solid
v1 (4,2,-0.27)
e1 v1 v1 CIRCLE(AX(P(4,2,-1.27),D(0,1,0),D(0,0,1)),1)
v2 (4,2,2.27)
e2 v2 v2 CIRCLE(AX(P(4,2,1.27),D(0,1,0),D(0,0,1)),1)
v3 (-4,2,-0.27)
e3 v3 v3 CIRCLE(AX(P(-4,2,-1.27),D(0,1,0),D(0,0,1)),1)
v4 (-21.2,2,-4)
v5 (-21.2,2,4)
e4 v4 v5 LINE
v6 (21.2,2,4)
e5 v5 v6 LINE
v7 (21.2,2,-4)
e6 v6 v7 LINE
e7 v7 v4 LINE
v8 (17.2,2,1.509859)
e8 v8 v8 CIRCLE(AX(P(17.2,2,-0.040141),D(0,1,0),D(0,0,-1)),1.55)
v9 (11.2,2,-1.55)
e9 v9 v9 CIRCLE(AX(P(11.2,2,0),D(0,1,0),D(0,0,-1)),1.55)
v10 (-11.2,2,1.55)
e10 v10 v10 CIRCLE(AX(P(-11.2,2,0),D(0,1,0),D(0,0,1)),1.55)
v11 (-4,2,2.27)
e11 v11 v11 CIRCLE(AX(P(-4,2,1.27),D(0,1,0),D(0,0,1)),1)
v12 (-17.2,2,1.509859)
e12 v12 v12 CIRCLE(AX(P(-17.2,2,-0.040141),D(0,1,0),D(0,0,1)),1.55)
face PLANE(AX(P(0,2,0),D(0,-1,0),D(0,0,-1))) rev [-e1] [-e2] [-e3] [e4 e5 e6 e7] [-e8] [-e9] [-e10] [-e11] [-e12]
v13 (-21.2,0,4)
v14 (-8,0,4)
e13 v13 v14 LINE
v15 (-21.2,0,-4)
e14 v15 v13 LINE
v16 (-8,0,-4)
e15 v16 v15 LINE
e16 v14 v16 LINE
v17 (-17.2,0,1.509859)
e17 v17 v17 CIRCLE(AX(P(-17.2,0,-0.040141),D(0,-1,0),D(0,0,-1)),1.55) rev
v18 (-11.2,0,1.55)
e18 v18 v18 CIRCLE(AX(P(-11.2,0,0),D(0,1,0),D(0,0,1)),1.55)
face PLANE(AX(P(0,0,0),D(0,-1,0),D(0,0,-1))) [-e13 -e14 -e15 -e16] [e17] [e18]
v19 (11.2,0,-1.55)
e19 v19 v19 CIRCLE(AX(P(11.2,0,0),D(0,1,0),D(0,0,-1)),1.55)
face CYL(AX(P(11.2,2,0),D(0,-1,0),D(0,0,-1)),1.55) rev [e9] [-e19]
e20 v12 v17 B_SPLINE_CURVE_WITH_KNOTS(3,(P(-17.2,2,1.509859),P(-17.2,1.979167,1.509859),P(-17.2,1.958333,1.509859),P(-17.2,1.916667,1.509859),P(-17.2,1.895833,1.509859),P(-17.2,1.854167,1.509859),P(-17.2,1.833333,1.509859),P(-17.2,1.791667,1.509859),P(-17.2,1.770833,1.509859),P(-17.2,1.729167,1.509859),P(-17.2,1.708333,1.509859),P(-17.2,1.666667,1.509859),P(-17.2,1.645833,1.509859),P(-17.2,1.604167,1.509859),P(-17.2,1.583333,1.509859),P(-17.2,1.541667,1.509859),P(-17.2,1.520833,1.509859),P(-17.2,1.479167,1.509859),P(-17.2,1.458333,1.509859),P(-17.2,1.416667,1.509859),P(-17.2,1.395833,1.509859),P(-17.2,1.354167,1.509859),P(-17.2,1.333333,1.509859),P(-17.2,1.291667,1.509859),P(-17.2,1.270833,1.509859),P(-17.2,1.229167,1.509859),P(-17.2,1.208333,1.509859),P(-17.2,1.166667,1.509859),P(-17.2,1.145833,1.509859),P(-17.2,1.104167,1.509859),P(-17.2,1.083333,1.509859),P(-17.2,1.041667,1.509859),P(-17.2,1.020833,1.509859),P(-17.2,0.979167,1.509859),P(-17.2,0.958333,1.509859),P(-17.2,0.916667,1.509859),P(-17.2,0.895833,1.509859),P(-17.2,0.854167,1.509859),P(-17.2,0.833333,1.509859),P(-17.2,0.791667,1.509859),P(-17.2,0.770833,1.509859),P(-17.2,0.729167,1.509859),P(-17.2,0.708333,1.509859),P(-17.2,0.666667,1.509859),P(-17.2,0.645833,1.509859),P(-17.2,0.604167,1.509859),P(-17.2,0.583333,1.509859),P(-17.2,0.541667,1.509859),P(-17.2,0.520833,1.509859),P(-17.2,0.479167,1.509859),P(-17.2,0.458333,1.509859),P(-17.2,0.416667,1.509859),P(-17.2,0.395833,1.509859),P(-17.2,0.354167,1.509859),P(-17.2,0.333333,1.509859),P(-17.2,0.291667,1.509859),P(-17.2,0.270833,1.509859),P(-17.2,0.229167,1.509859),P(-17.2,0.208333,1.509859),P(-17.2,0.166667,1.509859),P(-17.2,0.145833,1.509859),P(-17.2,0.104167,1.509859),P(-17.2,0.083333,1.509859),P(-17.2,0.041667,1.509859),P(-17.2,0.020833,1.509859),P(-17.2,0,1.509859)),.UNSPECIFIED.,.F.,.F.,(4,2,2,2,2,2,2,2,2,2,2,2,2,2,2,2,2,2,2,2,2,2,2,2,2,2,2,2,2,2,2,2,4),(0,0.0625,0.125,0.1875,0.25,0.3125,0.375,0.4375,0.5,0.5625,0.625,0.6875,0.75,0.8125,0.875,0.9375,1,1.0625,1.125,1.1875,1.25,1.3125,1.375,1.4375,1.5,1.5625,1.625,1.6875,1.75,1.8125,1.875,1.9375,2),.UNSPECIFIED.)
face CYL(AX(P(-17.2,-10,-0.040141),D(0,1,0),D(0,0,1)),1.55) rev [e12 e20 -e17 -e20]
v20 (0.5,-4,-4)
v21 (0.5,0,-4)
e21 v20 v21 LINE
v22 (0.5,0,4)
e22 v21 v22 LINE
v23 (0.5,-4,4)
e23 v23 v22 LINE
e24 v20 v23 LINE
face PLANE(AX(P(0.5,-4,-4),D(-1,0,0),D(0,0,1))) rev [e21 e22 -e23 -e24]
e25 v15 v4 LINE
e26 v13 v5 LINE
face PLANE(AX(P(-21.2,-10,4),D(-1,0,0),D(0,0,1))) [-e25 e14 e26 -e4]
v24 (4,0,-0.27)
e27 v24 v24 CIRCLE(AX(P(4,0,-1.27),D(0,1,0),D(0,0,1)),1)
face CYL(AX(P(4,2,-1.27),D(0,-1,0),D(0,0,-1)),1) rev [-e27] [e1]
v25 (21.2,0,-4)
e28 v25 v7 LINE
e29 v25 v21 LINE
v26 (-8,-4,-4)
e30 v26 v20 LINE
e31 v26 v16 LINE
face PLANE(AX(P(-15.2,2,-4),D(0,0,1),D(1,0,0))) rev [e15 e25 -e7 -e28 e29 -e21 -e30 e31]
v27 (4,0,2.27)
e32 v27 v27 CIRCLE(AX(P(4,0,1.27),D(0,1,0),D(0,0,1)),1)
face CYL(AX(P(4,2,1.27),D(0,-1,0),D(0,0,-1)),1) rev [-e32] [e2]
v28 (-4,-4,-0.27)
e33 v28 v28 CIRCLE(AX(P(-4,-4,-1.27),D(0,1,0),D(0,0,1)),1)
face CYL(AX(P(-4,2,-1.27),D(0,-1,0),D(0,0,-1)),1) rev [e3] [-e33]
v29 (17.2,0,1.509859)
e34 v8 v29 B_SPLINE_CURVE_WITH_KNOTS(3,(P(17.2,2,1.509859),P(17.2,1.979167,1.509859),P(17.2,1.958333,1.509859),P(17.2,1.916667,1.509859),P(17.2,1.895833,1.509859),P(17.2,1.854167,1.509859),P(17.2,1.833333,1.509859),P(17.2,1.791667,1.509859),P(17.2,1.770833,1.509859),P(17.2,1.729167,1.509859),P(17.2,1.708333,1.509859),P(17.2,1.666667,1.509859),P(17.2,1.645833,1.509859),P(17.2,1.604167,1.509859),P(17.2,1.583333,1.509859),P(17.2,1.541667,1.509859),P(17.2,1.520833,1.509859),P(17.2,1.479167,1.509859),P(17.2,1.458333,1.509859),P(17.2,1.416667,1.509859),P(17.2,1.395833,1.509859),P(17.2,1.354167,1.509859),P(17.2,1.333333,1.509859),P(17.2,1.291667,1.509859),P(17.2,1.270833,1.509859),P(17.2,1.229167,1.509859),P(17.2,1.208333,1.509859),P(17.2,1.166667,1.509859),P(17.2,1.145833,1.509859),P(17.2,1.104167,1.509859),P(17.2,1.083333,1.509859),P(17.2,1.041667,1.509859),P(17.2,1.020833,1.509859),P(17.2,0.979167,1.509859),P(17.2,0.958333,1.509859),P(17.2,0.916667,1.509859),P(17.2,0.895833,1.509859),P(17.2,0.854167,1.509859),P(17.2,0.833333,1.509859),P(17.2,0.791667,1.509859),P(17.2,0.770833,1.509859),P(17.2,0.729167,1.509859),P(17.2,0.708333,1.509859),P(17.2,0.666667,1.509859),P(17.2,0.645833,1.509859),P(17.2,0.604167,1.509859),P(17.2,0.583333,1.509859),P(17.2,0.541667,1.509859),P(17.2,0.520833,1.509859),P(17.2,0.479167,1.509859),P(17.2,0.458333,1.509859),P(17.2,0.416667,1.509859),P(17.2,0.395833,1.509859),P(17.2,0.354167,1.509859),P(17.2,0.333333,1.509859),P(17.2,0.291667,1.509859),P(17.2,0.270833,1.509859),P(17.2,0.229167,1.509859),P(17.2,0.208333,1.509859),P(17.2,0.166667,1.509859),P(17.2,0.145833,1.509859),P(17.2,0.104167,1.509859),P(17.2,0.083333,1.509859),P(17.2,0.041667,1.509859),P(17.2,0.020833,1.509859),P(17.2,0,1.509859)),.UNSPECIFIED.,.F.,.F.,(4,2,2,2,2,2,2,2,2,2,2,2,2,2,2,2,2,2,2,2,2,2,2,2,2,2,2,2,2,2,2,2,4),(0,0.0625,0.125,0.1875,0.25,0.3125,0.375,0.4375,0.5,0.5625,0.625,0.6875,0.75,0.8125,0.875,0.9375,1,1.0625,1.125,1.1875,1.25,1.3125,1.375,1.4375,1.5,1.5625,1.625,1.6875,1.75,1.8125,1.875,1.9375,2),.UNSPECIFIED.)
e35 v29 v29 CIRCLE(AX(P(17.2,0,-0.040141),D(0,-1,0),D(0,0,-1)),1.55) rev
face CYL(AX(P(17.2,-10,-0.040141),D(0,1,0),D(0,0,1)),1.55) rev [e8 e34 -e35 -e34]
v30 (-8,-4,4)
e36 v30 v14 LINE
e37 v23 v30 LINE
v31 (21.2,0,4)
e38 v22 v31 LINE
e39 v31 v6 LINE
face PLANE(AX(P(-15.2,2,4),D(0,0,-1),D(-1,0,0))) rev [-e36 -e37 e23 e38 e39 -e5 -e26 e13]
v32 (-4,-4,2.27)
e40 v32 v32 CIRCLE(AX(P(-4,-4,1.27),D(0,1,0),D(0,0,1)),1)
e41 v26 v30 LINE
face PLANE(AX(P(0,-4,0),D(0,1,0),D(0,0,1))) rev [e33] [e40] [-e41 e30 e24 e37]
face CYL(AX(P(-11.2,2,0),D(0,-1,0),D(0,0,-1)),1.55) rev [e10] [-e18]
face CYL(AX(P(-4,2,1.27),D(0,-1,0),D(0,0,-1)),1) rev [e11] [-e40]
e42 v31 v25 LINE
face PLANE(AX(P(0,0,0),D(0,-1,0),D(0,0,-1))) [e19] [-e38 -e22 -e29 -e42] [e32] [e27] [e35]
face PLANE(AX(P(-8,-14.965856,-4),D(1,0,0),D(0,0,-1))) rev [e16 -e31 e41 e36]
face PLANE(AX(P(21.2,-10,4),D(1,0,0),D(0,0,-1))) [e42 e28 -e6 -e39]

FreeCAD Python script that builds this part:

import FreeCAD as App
import Part
import Sketcher
from FreeCAD import Vector


def add_polygon(sketch, points):
    """Adds a closed chain of lines whose ends are joined by coincident constraints."""
    first, n = sketch.GeometryCount, len(points)
    for a, b in zip(points, points[1:] + points[:1]):
        sketch.addGeometry(Part.LineSegment(App.Vector(*a, 0), App.Vector(*b, 0)), False)
    for i in range(n):
        sketch.addConstraint(Sketcher.Constraint("Coincident", first + i, 2, first + (i + 1) % n, 1))

doc = App.newDocument("Part")
body = doc.addObject("PartDesign::Body", "Body")

# Sketch on XZ plane
sketch1 = doc.addObject("Sketcher::SketchObject", "Sketch")
body.addObject(sketch1)
sketch1.AttachmentSupport = (doc.XZ_Plane, [""])
sketch1.MapMode = "FlatFace"
add_polygon(sketch1, [(-15.2, -4), (-15.2, 4), (15.2, 4), (15.2, -4)])  # lines 0-3
sketch1.addGeometry(Part.Circle(Vector(-4, 1.3, 0), Vector(0, 0, 1), 1), False)  # 4
sketch1.addGeometry(Part.Circle(Vector(4, 1.3, 0), Vector(0, 0, 1), 1), False)  # 5
sketch1.addGeometry(Part.Circle(Vector(-11.2, 0, 0), Vector(0, 0, 1), 1.6), False)  # 6
sketch1.addGeometry(Part.Circle(Vector(-4, -1.3, 0), Vector(0, 0, 1), 1), False)  # 7
sketch1.addGeometry(Part.Circle(Vector(11.2, 0, 0), Vector(0, 0, 1), 1.6), False)  # 8
sketch1.addGeometry(Part.Circle(Vector(4, -1.3, 0), Vector(0, 0, 1), 1), False)  # 9
sketch1.addConstraint([
    Sketcher.Constraint("Vertical", 0),
    Sketcher.Constraint("Horizontal", 1),
    Sketcher.Constraint("Vertical", 2),
    Sketcher.Constraint("Horizontal", 3),
    Sketcher.Constraint("Equal", 4, 5),
    Sketcher.Constraint("Equal", 5, 7),
    Sketcher.Constraint("Equal", 6, 8),
    Sketcher.Constraint("Equal", 7, 9),
    Sketcher.Constraint("Symmetric", 5, 3, 7, 3, -1, 1),
    Sketcher.Constraint("Symmetric", 6, 3, 8, 3, -1, 1),
    Sketcher.Constraint("Symmetric", 4, 3, 9, 3, -1, 1),
    Sketcher.Constraint("Symmetric", 0, 2, 2, 2, -1, 1),
    Sketcher.Constraint("Symmetric", 4, 3, 5, 3, -2),
    Sketcher.Constraint("PointOnObject", 6, 3, -1),
    Sketcher.Constraint("Diameter", 4, 2.0),
    Sketcher.Constraint("Diameter", 6, 3.1),
    Sketcher.Constraint("DistanceY", 0, 1, 0, 2, 8.0),
    Sketcher.Constraint("DistanceX", 1, 1, 1, 2, 30.4),
    Sketcher.Constraint("DistanceX", 4, 3, -1, 1, 4.0),
    Sketcher.Constraint("DistanceX", 0, 2, 6, 3, 4.0),
    Sketcher.Constraint("DistanceY", -1, 1, 4, 3, 1.27),
])
pad1 = doc.addObject("PartDesign::Pad", "Pad")
body.addObject(pad1)
pad1.Profile = sketch1
pad1.Length = 2
pad1.Reversed = True

# Sketch on XZ plane
sketch2 = doc.addObject("Sketcher::SketchObject", "Sketch001")
body.addObject(sketch2)
sketch2.AttachmentSupport = (doc.XZ_Plane, [""])
sketch2.MapMode = "FlatFace"
add_polygon(sketch2, [(-0.5, 4), (-0.5, -4), (0.5, -4), (0.5, 4)])  # lines 0-3
sketch2.addConstraint([
    Sketcher.Constraint("Vertical", 0),
    Sketcher.Constraint("Horizontal", 1),
    Sketcher.Constraint("Vertical", 2),
    Sketcher.Constraint("Horizontal", 3),
    Sketcher.Constraint("Symmetric", 0, 2, 2, 2, -1, 1),
    Sketcher.Constraint("DistanceX", 1, 1, 1, 2, 1.0),
    Sketcher.Constraint("DistanceY", 0, 2, 0, 1, 8.0),
])
pad2 = doc.addObject("PartDesign::Pad", "Pad001")
body.addObject(pad2)
pad2.Profile = sketch2
pad2.Length = 4

# Sketch on XZ plane
sketch3 = doc.addObject("Sketcher::SketchObject", "Sketch002")
body.addObject(sketch3)
sketch3.AttachmentSupport = (doc.XZ_Plane, [""])
sketch3.MapMode = "FlatFace"
sketch3.AttachmentOffset = App.Placement(Vector(0, 0, 4), App.Rotation())
add_polygon(sketch3, [(-8, 4), (-8, -4), (-0.5, -4), (-0.5, 4)])  # lines 0-3
sketch3.addGeometry(Part.Circle(Vector(-4, -1.3, 0), Vector(0, 0, 1), 1), False)  # 4
sketch3.addGeometry(Part.Circle(Vector(-4, 1.3, 0), Vector(0, 0, 1), 1), False)  # 5
sketch3.addConstraint([
    Sketcher.Constraint("Vertical", 0),
    Sketcher.Constraint("Horizontal", 1),
    Sketcher.Constraint("Vertical", 2),
    Sketcher.Constraint("Horizontal", 3),
    Sketcher.Constraint("Equal", 4, 5),
    Sketcher.Constraint("Symmetric", 4, 3, 5, 3, -1),
    Sketcher.Constraint("Diameter", 4, 2.0),
    Sketcher.Constraint("DistanceY", 0, 2, 0, 1, 8.0),
    Sketcher.Constraint("DistanceX", 1, 1, 1, 2, 7.5),
    Sketcher.Constraint("DistanceX", 4, 3, -1, 1, 4.0),
    Sketcher.Constraint("DistanceX", 0, 2, -1, 1, 8.0),
    Sketcher.Constraint("DistanceY", 0, 2, -1, 1, 4.0),
    Sketcher.Constraint("DistanceY", 4, 3, -1, 1, 1.27),
])
pad3 = doc.addObject("PartDesign::Pad", "Pad002")
body.addObject(pad3)
pad3.Profile = sketch3
pad3.Length = 4
pad3.Reversed = True

# Sketch on XZ plane
sketch4 = doc.addObject("Sketcher::SketchObject", "Sketch003")
body.addObject(sketch4)
sketch4.AttachmentSupport = (doc.XZ_Plane, [""])
sketch4.MapMode = "FlatFace"
sketch4.AttachmentOffset = App.Placement(Vector(0, 0, -2), App.Rotation())
add_polygon(sketch4, [(-21.2, -4), (-21.2, 4), (-15.2, 4), (-15.2, -4)])  # lines 0-3
sketch4.addGeometry(Part.Circle(Vector(-17.2, 0, 0), Vector(0, 0, 1), 1.6), False)  # 4
add_polygon(sketch4, [(15.2, -4), (15.2, 4), (21.2, 4), (21.2, -4)])  # lines 5-8
sketch4.addGeometry(Part.Circle(Vector(17.2, 0, 0), Vector(0, 0, 1), 1.6), False)  # 9
sketch4.addConstraint([
    Sketcher.Constraint("Vertical", 0),
    Sketcher.Constraint("Horizontal", 1),
    Sketcher.Constraint("Vertical", 2),
    Sketcher.Constraint("Horizontal", 3),
    Sketcher.Constraint("Vertical", 5),
    Sketcher.Constraint("Horizontal", 6),
    Sketcher.Constraint("Vertical", 7),
    Sketcher.Constraint("Horizontal", 8),
    Sketcher.Constraint("Equal", 4, 9),
    Sketcher.Constraint("Symmetric", 2, 2, 5, 2, -1, 1),
    Sketcher.Constraint("Symmetric", 0, 2, 7, 2, -1, 1),
    Sketcher.Constraint("Symmetric", 4, 3, 9, 3, -2),
    Sketcher.Constraint("Horizontal", 1, 2, 5, 2),
    Sketcher.Constraint("Diameter", 4, 3.1),
    Sketcher.Constraint("DistanceX", 1, 1, 1, 2, 6.0),
    Sketcher.Constraint("DistanceY", 0, 1, 0, 2, 8.0),
    Sketcher.Constraint("DistanceX", 0, 2, 4, 3, 4.0),
    Sketcher.Constraint("DistanceX", 4, 3, -1, 1, 17.2),
    Sketcher.Constraint("DistanceY", 4, 3, -1, 1, 0.040141),
])
pad4 = doc.addObject("PartDesign::Pad", "Pad003")
body.addObject(pad4)
pad4.Profile = sketch4
pad4.Length = 2

doc.recompute()
